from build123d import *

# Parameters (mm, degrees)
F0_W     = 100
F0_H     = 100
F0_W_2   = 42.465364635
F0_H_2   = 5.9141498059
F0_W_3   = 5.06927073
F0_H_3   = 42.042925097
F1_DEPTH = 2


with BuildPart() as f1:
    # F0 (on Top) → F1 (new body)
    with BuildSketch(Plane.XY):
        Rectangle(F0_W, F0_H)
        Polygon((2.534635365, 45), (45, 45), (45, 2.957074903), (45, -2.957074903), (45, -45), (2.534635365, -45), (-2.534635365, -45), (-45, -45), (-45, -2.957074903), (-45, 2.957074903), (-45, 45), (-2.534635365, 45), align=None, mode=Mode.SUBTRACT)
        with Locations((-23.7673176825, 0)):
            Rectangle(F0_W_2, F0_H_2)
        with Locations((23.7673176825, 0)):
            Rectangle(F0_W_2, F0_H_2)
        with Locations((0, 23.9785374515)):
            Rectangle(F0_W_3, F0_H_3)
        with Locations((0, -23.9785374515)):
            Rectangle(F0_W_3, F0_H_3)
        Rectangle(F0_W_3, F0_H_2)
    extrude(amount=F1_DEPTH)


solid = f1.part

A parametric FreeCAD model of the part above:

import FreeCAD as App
import Part
import Sketcher

V = App.Vector

doc = App.newDocument("Part")
body = doc.addObject("PartDesign::Body", "Body")

sketch1 = body.newObject("Sketcher::SketchObject", "Sketch")
sketch1.AttachmentSupport = (doc.getObject("XY_Plane"), [""])
sketch1.MapMode = "FlatFace"
sketch1.addGeometry(Part.LineSegment(V(-50, 50, 0), V(-50, -50, 0)), False)
sketch1.addGeometry(Part.LineSegment(V(-50, -50, 0), V(50, -50, 0)), False)
sketch1.addGeometry(Part.LineSegment(V(50, -50, 0), V(50, 50, 0)), False)
sketch1.addGeometry(Part.LineSegment(V(50, 50, 0), V(-50, 50, 0)), False)
sketch1.addGeometry(Part.LineSegment(V(-45, -2.957075, 0), V(-2.534635, -2.957075, 0)), False)
sketch1.addGeometry(Part.LineSegment(V(-2.534635, -2.957075, 0), V(-2.534635, -45, 0)), False)
sketch1.addGeometry(Part.LineSegment(V(-2.534635, -45, 0), V(-45, -45, 0)), False)
sketch1.addGeometry(Part.LineSegment(V(-45, -45, 0), V(-45, -2.957075, 0)), False)
sketch1.addGeometry(Part.LineSegment(V(2.534635, -45, 0), V(2.534635, -2.957075, 0)), False)
sketch1.addGeometry(Part.LineSegment(V(2.534635, -2.957075, 0), V(45, -2.957075, 0)), False)
sketch1.addGeometry(Part.LineSegment(V(45, -2.957075, 0), V(45, -45, 0)), False)
sketch1.addGeometry(Part.LineSegment(V(45, -45, 0), V(2.534635, -45, 0)), False)
sketch1.addGeometry(Part.LineSegment(V(-2.534635, 2.957075, 0), V(-45, 2.957075, 0)), False)
sketch1.addGeometry(Part.LineSegment(V(-45, 2.957075, 0), V(-45, 45, 0)), False)
sketch1.addGeometry(Part.LineSegment(V(-45, 45, 0), V(-2.534635, 45, 0)), False)
sketch1.addGeometry(Part.LineSegment(V(-2.534635, 45, 0), V(-2.534635, 2.957075, 0)), False)
sketch1.addGeometry(Part.LineSegment(V(45, 2.957075, 0), V(2.534635, 2.957075, 0)), False)
sketch1.addGeometry(Part.LineSegment(V(2.534635, 2.957075, 0), V(2.534635, 45, 0)), False)
sketch1.addGeometry(Part.LineSegment(V(2.534635, 45, 0), V(45, 45, 0)), False)
sketch1.addGeometry(Part.LineSegment(V(45, 45, 0), V(45, 2.957075, 0)), False)
sketch1.addConstraint(Sketcher.Constraint("Coincident", 0, 2, 1, 1))
sketch1.addConstraint(Sketcher.Constraint("Coincident", 1, 2, 2, 1))
sketch1.addConstraint(Sketcher.Constraint("Coincident", 2, 2, 3, 1))
sketch1.addConstraint(Sketcher.Constraint("Coincident", 3, 2, 0, 1))
sketch1.addConstraint(Sketcher.Constraint("Coincident", 4, 2, 5, 1))
sketch1.addConstraint(Sketcher.Constraint("Coincident", 5, 2, 6, 1))
sketch1.addConstraint(Sketcher.Constraint("Coincident", 6, 2, 7, 1))
sketch1.addConstraint(Sketcher.Constraint("Coincident", 7, 2, 4, 1))
sketch1.addConstraint(Sketcher.Constraint("Coincident", 8, 2, 9, 1))
sketch1.addConstraint(Sketcher.Constraint("Coincident", 9, 2, 10, 1))
sketch1.addConstraint(Sketcher.Constraint("Coincident", 10, 2, 11, 1))
sketch1.addConstraint(Sketcher.Constraint("Coincident", 11, 2, 8, 1))
sketch1.addConstraint(Sketcher.Constraint("Coincident", 12, 2, 13, 1))
sketch1.addConstraint(Sketcher.Constraint("Coincident", 13, 2, 14, 1))
sketch1.addConstraint(Sketcher.Constraint("Coincident", 14, 2, 15, 1))
sketch1.addConstraint(Sketcher.Constraint("Coincident", 15, 2, 12, 1))
sketch1.addConstraint(Sketcher.Constraint("Coincident", 16, 2, 17, 1))
sketch1.addConstraint(Sketcher.Constraint("Coincident", 17, 2, 18, 1))
sketch1.addConstraint(Sketcher.Constraint("Coincident", 18, 2, 19, 1))
sketch1.addConstraint(Sketcher.Constraint("Coincident", 19, 2, 16, 1))
sketch1.addConstraint(Sketcher.Constraint("Vertical", 0))
sketch1.addConstraint(Sketcher.Constraint("Horizontal", 1))
sketch1.addConstraint(Sketcher.Constraint("Vertical", 2))
sketch1.addConstraint(Sketcher.Constraint("Horizontal", 3))
sketch1.addConstraint(Sketcher.Constraint("Horizontal", 4))
sketch1.addConstraint(Sketcher.Constraint("Vertical", 5))
sketch1.addConstraint(Sketcher.Constraint("Horizontal", 6))
sketch1.addConstraint(Sketcher.Constraint("Vertical", 7))
sketch1.addConstraint(Sketcher.Constraint("Vertical", 8))
sketch1.addConstraint(Sketcher.Constraint("Horizontal", 9))
sketch1.addConstraint(Sketcher.Constraint("Vertical", 10))
sketch1.addConstraint(Sketcher.Constraint("Horizontal", 11))
sketch1.addConstraint(Sketcher.Constraint("Horizontal", 12))
sketch1.addConstraint(Sketcher.Constraint("Vertical", 13))
sketch1.addConstraint(Sketcher.Constraint("Horizontal", 14))
sketch1.addConstraint(Sketcher.Constraint("Vertical", 15))
sketch1.addConstraint(Sketcher.Constraint("Horizontal", 16))
sketch1.addConstraint(Sketcher.Constraint("Vertical", 17))
sketch1.addConstraint(Sketcher.Constraint("Horizontal", 18))
sketch1.addConstraint(Sketcher.Constraint("Vertical", 19))
sketch1.addConstraint(Sketcher.Constraint("Symmetric", 0, 2, 2, 2, -1, 1))
sketch1.addConstraint(Sketcher.Constraint("Symmetric", 9, 2, 12, 2, -1, 1))
sketch1.addConstraint(Sketcher.Constraint("Symmetric", 11, 2, 14, 2, -1, 1))
sketch1.addConstraint(Sketcher.Constraint("Symmetric", 4, 2, 16, 2, -1, 1))
sketch1.addConstraint(Sketcher.Constraint("Symmetric", 6, 2, 18, 2, -1, 1))
sketch1.addConstraint(Sketcher.Constraint("Symmetric", 4, 2, 8, 2, -2))
sketch1.addConstraint(Sketcher.Constraint("Symmetric", 6, 2, 10, 2, -2))
sketch1.addConstraint(Sketcher.Constraint("Equal", 3, 0))
sketch1.addConstraint(Sketcher.Constraint("DistanceX", 1, 1, 1, 2, 100.0))
sketch1.addConstraint(Sketcher.Constraint("DistanceY", 5, 2, -1, 1, 45.0))
sketch1.addConstraint(Sketcher.Constraint("DistanceX", 6, 2, -1, 1, 45.0))
sketch1.addConstraint(Sketcher.Constraint("DistanceX", 4, 1, 4, 2, 42.465365))
sketch1.addConstraint(Sketcher.Constraint("DistanceY", 5, 2, 5, 1, 42.042925))
pad1 = body.newObject("PartDesign::Pad", "Pad")
pad1.Profile = sketch1
pad1.Length = 2

doc.recompute()
